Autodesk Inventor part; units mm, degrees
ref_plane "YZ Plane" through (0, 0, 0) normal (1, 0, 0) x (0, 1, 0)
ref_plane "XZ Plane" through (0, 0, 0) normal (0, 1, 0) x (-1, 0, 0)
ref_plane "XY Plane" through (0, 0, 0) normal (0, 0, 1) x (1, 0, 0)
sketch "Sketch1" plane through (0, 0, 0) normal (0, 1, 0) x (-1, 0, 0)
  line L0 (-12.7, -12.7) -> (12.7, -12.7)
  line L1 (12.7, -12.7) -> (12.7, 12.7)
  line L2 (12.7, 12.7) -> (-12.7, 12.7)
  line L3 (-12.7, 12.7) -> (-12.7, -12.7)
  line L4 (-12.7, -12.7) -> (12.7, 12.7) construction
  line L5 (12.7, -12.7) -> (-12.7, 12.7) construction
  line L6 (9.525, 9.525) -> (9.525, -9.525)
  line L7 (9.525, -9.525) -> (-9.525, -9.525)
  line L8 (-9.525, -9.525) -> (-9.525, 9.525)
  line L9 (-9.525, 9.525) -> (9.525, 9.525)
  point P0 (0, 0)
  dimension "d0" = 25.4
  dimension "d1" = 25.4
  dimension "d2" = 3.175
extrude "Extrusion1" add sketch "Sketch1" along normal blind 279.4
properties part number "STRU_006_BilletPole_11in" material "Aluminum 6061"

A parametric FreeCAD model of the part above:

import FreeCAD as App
import Part
import Sketcher
Q = App.Units.Quantity

doc = App.newDocument("Part")
body = doc.addObject("PartDesign::Body", "Body")

# Sketch on XZ plane
sketch1 = body.newObject("Sketcher::SketchObject", "Sketch")
sketch1.AttachmentSupport = (doc.getObject("XZ_Plane"), [""])
sketch1.MapMode = "FlatFace"
sketch1.addGeometry([
    Part.LineSegment(App.Vector(13, 13, 0), App.Vector(13, -13, 0)),  # 0
    Part.LineSegment(App.Vector(13, -13, 0), App.Vector(-13, -13, 0)),  # 1
    Part.LineSegment(App.Vector(-13, -13, 0), App.Vector(-13, 13, 0)),  # 2
    Part.LineSegment(App.Vector(-13, 13, 0), App.Vector(13, 13, 0)),  # 3
    Part.LineSegment(App.Vector(10, 10, 0), App.Vector(-10, 10, 0)),  # 4
    Part.LineSegment(App.Vector(-10, 10, 0), App.Vector(-10, -10, 0)),  # 5
    Part.LineSegment(App.Vector(-10, -10, 0), App.Vector(10, -10, 0)),  # 6
    Part.LineSegment(App.Vector(10, -10, 0), App.Vector(10, 10, 0)),  # 7
], False)
sketch1.addConstraint([
    Sketcher.Constraint("Coincident", 0, 2, 1, 1),
    Sketcher.Constraint("Coincident", 1, 2, 2, 1),
    Sketcher.Constraint("Coincident", 2, 2, 3, 1),
    Sketcher.Constraint("Coincident", 3, 2, 0, 1),
    Sketcher.Constraint("Coincident", 4, 2, 5, 1),
    Sketcher.Constraint("Coincident", 5, 2, 6, 1),
    Sketcher.Constraint("Coincident", 6, 2, 7, 1),
    Sketcher.Constraint("Coincident", 7, 2, 4, 1),
    Sketcher.Constraint("Vertical", 0),
    Sketcher.Constraint("Horizontal", 1),
    Sketcher.Constraint("Vertical", 2),
    Sketcher.Constraint("Horizontal", 3),
    Sketcher.Constraint("Horizontal", 4),
    Sketcher.Constraint("Vertical", 5),
    Sketcher.Constraint("Horizontal", 6),
    Sketcher.Constraint("Vertical", 7),
    Sketcher.Constraint("Symmetric", 0, 2, 2, 2, -1, 1),
    Sketcher.Constraint("Symmetric", 4, 2, 6, 2, -1, 1),
    Sketcher.Constraint("Equal", 3, 0),
    Sketcher.Constraint("Equal", 6, 5),
    Sketcher.Constraint("DistanceX", 1, 2, 1, 1, Q("1 in")),
    Sketcher.Constraint("DistanceX", 2, 2, 4, 2, Q("0.125 in")),
])
pad1 = body.newObject("PartDesign::Pad", "Pad")
pad1.Profile = sketch1
pad1.Length = Q("11 in")
pad1.Reversed = True

doc.recompute()
